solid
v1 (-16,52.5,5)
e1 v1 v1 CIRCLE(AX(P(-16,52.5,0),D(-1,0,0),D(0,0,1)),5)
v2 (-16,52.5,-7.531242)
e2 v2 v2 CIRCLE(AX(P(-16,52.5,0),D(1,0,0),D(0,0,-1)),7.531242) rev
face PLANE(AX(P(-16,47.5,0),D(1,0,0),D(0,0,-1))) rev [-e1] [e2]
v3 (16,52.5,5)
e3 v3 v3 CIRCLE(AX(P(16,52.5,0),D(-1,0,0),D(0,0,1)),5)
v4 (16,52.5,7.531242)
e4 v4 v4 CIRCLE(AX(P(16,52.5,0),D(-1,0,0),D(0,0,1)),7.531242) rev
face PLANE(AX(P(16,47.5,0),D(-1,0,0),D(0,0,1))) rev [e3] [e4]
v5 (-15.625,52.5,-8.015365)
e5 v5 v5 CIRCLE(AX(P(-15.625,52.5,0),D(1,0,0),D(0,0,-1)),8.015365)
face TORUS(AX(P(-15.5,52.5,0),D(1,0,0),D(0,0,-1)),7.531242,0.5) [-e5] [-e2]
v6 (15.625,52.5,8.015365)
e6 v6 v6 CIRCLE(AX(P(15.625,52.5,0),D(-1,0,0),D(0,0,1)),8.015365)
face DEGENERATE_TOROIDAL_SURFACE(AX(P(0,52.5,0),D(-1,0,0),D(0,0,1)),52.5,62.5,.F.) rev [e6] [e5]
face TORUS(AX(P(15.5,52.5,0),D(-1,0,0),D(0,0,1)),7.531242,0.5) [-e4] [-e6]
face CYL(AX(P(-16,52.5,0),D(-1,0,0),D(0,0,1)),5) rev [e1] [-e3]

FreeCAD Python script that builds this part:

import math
import FreeCAD as App
import Part
import Sketcher

V = App.Vector


def edges_at(feature, points):
    """Names of the edges that pass closest to the given points."""
    edges = feature.Shape.Edges
    near = lambda p: min(range(len(edges)), key=lambda i: edges[i].distToShape(Part.Vertex(*p))[0])
    return sorted({f"Edge{near(p) + 1}" for p in points})

doc = App.newDocument("Part")
body = doc.addObject("PartDesign::Body", "Body")

sketch1 = body.newObject("Sketcher::SketchObject", "Sketch")
sketch1.AttachmentSupport = (doc.getObject("XY_Plane"), [""])
sketch1.MapMode = "FlatFace"
sketch1.addGeometry([
    Part.LineSegment(V(16, 57.5, 0), V(16, 60.417299, 0)),
    Part.ArcOfCircle(Part.Circle(V(0, 0, 0), V(0, 0, 1), 62.5), math.radians(75.167152), math.radians(104.832848)),
    Part.LineSegment(V(-16, 60.417299, 0), V(-16, 57.5, 0)),
    Part.LineSegment(V(-16, 57.5, 0), V(16, 57.5, 0)),
], False)
sketch1.addGeometry(Part.LineSegment(V(-16, 52.5, 0), V(16, 52.5, 0)), True)
sketch1.addConstraint([
    Sketcher.Constraint("Coincident", 0, 2, 1, 1),
    Sketcher.Constraint("Coincident", 1, 2, 2, 1),
    Sketcher.Constraint("Coincident", 2, 2, 3, 1),
    Sketcher.Constraint("Coincident", 3, 2, 0, 1),
    Sketcher.Constraint("Vertical", 0),
    Sketcher.Constraint("Vertical", 2),
    Sketcher.Constraint("Horizontal", 3),
    Sketcher.Constraint("Horizontal", 4),
    Sketcher.Constraint("Coincident", 1, 3, -1, 1),
    Sketcher.Constraint("Horizontal", 0, 2, 1, 2),
    Sketcher.Constraint("Vertical", 2, 2, 4, 1),
    Sketcher.Constraint("Vertical", 3, 2, 4, 2),
    Sketcher.Constraint("Radius", 1, 62.5),
    Sketcher.Constraint("DistanceX", 3, 1, 3, 2, 32.0),
    Sketcher.Constraint("DistanceY", 4, 1, 2, 2, 5.0),
    Sketcher.Constraint("DistanceY", -1, 1, 2, 2, 57.5),
])
revolution = body.newObject("PartDesign::Revolution", "Revolution")
revolution.Profile = sketch1
revolution.ReferenceAxis = (sketch1, ["Axis0"])
revolution.Angle = 360
doc.recompute()

fillet = body.newObject("PartDesign::Fillet", "Fillet")
fillet.Base = (revolution, edges_at(revolution, [(16, 52.5, -7.917), (-16, 52.5, -7.917)]))
fillet.Radius = 0.5

doc.recompute()
